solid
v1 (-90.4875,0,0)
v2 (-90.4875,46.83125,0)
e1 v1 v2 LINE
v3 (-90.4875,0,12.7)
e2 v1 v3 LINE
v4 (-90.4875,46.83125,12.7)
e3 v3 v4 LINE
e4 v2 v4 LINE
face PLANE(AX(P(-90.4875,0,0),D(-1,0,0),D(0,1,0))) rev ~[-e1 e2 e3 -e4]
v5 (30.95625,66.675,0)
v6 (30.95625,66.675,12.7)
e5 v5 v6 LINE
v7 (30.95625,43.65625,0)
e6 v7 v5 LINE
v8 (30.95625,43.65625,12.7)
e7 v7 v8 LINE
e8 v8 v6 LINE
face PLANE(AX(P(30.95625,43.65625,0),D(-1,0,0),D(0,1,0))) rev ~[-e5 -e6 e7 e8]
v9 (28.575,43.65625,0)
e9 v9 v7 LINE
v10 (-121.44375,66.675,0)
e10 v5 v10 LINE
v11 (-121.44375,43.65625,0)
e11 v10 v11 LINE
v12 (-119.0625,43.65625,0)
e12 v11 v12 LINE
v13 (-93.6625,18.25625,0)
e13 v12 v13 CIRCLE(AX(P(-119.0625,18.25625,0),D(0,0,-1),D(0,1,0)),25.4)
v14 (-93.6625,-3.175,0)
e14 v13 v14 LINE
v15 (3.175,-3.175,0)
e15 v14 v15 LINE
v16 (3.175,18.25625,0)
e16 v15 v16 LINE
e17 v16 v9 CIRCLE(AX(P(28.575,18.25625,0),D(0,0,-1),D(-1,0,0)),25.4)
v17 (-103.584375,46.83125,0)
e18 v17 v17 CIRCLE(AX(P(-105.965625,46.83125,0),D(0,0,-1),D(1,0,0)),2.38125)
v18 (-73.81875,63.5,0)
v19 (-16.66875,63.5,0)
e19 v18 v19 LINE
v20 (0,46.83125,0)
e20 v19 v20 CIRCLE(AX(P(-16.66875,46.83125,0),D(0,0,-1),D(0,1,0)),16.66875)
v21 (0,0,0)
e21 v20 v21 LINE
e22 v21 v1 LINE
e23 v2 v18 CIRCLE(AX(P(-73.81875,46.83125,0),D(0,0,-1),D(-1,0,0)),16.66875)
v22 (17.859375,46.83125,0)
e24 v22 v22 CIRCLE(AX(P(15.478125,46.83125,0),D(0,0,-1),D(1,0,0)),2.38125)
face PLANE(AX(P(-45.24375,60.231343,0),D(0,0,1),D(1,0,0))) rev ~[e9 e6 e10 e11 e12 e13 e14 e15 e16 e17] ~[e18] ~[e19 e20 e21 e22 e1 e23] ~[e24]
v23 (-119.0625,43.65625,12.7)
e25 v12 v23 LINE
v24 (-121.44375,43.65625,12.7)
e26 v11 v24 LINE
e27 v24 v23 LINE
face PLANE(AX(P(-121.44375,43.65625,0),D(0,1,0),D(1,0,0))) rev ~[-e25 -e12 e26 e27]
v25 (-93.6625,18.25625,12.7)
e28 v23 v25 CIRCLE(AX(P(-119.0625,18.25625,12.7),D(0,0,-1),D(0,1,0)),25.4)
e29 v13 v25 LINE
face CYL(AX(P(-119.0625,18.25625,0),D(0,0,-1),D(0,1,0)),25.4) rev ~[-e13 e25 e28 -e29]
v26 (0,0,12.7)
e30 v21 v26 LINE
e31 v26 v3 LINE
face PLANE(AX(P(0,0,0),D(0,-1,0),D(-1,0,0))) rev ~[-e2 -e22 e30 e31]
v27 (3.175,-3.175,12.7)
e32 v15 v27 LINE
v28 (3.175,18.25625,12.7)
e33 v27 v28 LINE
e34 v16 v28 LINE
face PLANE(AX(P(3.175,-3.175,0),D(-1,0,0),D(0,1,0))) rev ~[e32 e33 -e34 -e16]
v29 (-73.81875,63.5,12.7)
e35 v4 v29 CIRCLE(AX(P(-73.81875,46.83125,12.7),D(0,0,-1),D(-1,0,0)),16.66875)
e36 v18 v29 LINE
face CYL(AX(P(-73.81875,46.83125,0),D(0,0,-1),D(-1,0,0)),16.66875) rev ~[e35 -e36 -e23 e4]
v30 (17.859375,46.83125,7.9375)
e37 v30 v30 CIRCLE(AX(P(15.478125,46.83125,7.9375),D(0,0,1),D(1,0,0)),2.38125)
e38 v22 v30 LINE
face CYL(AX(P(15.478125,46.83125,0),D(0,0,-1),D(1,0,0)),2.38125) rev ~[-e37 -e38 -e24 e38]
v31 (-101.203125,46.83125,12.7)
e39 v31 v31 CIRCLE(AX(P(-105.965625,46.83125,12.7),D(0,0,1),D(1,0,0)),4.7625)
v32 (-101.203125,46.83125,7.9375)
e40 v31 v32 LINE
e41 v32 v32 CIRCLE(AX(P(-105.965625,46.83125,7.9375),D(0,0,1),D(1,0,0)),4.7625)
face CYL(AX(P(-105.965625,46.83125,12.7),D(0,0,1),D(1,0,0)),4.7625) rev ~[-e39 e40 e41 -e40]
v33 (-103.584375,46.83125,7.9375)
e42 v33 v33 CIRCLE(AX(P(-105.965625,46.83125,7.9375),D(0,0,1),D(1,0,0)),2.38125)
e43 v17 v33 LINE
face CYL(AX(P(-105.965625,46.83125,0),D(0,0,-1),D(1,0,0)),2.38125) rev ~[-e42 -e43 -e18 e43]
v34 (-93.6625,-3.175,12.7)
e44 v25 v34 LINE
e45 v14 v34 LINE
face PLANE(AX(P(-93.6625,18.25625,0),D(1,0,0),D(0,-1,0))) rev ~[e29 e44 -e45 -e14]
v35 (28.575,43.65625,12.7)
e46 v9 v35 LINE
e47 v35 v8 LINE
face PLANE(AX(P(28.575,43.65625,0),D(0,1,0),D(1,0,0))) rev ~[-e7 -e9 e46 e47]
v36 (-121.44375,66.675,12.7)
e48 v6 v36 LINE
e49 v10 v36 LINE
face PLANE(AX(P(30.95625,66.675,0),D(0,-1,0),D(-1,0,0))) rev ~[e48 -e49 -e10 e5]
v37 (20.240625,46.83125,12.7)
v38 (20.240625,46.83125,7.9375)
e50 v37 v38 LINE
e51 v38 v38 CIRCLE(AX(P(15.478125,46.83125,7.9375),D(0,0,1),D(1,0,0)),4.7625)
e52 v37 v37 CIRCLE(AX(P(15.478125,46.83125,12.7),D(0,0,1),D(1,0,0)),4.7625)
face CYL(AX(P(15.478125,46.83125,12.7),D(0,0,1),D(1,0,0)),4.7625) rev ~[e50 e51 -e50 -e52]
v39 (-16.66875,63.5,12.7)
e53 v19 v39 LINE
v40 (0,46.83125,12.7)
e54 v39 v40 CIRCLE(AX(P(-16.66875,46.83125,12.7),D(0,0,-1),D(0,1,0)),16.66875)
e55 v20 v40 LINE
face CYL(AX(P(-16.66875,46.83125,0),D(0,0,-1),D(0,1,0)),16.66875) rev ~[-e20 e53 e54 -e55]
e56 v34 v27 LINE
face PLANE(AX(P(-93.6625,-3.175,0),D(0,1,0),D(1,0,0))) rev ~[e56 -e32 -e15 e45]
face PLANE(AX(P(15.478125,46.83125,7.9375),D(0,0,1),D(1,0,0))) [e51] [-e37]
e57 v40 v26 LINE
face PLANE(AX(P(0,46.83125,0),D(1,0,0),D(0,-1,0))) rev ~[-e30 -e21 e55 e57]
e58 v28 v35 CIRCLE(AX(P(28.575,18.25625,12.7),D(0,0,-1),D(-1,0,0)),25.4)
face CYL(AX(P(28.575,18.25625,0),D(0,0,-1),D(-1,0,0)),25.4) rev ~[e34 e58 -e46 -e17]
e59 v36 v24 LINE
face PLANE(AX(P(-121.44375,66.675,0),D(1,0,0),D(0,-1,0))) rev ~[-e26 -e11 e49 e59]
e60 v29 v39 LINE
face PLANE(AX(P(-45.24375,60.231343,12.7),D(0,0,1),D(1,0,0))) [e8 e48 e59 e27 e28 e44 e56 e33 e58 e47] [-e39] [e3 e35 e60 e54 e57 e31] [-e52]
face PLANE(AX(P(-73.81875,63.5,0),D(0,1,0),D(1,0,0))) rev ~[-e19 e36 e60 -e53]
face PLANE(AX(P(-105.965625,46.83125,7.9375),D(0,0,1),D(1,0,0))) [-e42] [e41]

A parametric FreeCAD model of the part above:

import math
import FreeCAD as App
import Part
import Sketcher

V = App.Vector
Q = App.Units.Quantity

doc = App.newDocument("Part")
body = doc.addObject("PartDesign::Body", "Body")

sketch1 = doc.addObject("Sketcher::SketchObject", "Sketch")
body.addObject(sketch1)
sketch1.AttachmentSupport = (doc.XY_Plane, [""])
sketch1.MapMode = "FlatFace"
sketch1.addGeometry(Part.LineSegment(V(30.95625, 66.675, 0), V(-121.44375, 66.675, 0)), False)
sketch1.addGeometry(Part.LineSegment(V(-121.44375, 66.675, 0), V(-121.44375, 43.65625, 0)), False)
sketch1.addGeometry(Part.LineSegment(V(-121.44375, 43.65625, 0), V(-119.0625, 43.65625, 0)), False)
sketch1.addGeometry(Part.ArcOfCircle(Part.Circle(V(-119.0625, 18.25625, 0), V(0, 0, 1), 25.4), math.radians(0), math.radians(90)), False)
sketch1.addGeometry(Part.LineSegment(V(-93.6625, 18.25625, 0), V(-93.6625, -3.175, 0)), False)
sketch1.addGeometry(Part.LineSegment(V(-93.6625, -3.175, 0), V(3.175, -3.175, 0)), False)
sketch1.addGeometry(Part.LineSegment(V(3.175, -3.175, 0), V(3.175, 18.25625, 0)), False)
sketch1.addGeometry(Part.ArcOfCircle(Part.Circle(V(28.575, 18.25625, 0), V(0, 0, 1), 25.4), math.radians(90), math.radians(180)), False)
sketch1.addGeometry(Part.LineSegment(V(28.575, 43.65625, 0), V(30.95625, 43.65625, 0)), False)
sketch1.addGeometry(Part.LineSegment(V(30.95625, 43.65625, 0), V(30.95625, 66.675, 0)), False)
sketch1.addGeometry(Part.ArcOfCircle(Part.Circle(V(-16.66875, 46.83125, 0), V(0, 0, 1), 16.66875), math.radians(0), math.radians(90)), False)
sketch1.addGeometry(Part.LineSegment(V(0, 46.83125, 0), V(0, 0, 0)), False)
sketch1.addGeometry(Part.LineSegment(V(0, 0, 0), V(-90.4875, 0, 0)), False)
sketch1.addGeometry(Part.LineSegment(V(-90.4875, 0, 0), V(-90.4875, 46.83125, 0)), False)
sketch1.addGeometry(Part.ArcOfCircle(Part.Circle(V(-73.81875, 46.83125, 0), V(0, 0, 1), 16.66875), math.radians(90), math.radians(180)), False)
sketch1.addGeometry(Part.LineSegment(V(-73.81875, 63.5, 0), V(-16.66875, 63.5, 0)), False)
sketch1.addGeometry(Part.Circle(V(15.478125, 46.83125, 0), V(0, 0, 1), 2.38125), False)
sketch1.addGeometry(Part.Circle(V(-105.965625, 46.83125, 0), V(0, 0, 1), 2.38125), False)
sketch1.addConstraint(Sketcher.Constraint("Coincident", 0, 2, 1, 1))
sketch1.addConstraint(Sketcher.Constraint("Coincident", 1, 2, 2, 1))
sketch1.addConstraint(Sketcher.Constraint("Tangent", 2, 2, 3, 2))
sketch1.addConstraint(Sketcher.Constraint("Tangent", 3, 1, 4, 1))
sketch1.addConstraint(Sketcher.Constraint("Coincident", 4, 2, 5, 1))
sketch1.addConstraint(Sketcher.Constraint("Coincident", 5, 2, 6, 1))
sketch1.addConstraint(Sketcher.Constraint("Tangent", 6, 2, 7, 2))
sketch1.addConstraint(Sketcher.Constraint("Tangent", 7, 1, 8, 1))
sketch1.addConstraint(Sketcher.Constraint("Coincident", 8, 2, 9, 1))
sketch1.addConstraint(Sketcher.Constraint("Coincident", 9, 2, 0, 1))
sketch1.addConstraint(Sketcher.Constraint("Tangent", 10, 1, 11, 1))
sketch1.addConstraint(Sketcher.Constraint("Coincident", 11, 2, 12, 1))
sketch1.addConstraint(Sketcher.Constraint("Coincident", 12, 2, 13, 1))
sketch1.addConstraint(Sketcher.Constraint("Tangent", 13, 2, 14, 2))
sketch1.addConstraint(Sketcher.Constraint("Tangent", 14, 1, 15, 1))
sketch1.addConstraint(Sketcher.Constraint("Tangent", 15, 2, 10, 2))
sketch1.addConstraint(Sketcher.Constraint("Horizontal", 0))
sketch1.addConstraint(Sketcher.Constraint("Vertical", 1))
sketch1.addConstraint(Sketcher.Constraint("Horizontal", 2))
sketch1.addConstraint(Sketcher.Constraint("Vertical", 4))
sketch1.addConstraint(Sketcher.Constraint("Horizontal", 5))
sketch1.addConstraint(Sketcher.Constraint("Vertical", 6))
sketch1.addConstraint(Sketcher.Constraint("Horizontal", 8))
sketch1.addConstraint(Sketcher.Constraint("Vertical", 9))
sketch1.addConstraint(Sketcher.Constraint("Vertical", 11))
sketch1.addConstraint(Sketcher.Constraint("Horizontal", 12))
sketch1.addConstraint(Sketcher.Constraint("Vertical", 13))
sketch1.addConstraint(Sketcher.Constraint("Horizontal", 15))
sketch1.addConstraint(Sketcher.Constraint("Coincident", 11, 2, -1, 1))
sketch1.addConstraint(Sketcher.Constraint("Equal", 3, 7))
sketch1.addConstraint(Sketcher.Constraint("Equal", 10, 14))
sketch1.addConstraint(Sketcher.Constraint("Equal", 16, 17))
sketch1.addConstraint(Sketcher.Constraint("Horizontal", 3, 3, 7, 3))
sketch1.addConstraint(Sketcher.Constraint("Horizontal", 14, 3, 16, 3))
sketch1.addConstraint(Sketcher.Constraint("Horizontal", 16, 3, 17, 3))
sketch1.addConstraint(Sketcher.Constraint("Equal", 2, 8))
sketch1.addConstraint(Sketcher.Constraint("Radius", 3, Q("1 in")))
sketch1.addConstraint(Sketcher.Constraint("DistanceX", 0, 2, 0, 1, Q("6 in")))
sketch1.addConstraint(Sketcher.Constraint("Diameter", 16, Q("0.1875 in")))
sketch1.addConstraint(Sketcher.Constraint("Radius", 10, Q("0.65625 in")))
sketch1.addConstraint(Sketcher.Constraint("DistanceX", 15, 1, 15, 2, Q("2.25 in")))
sketch1.addConstraint(Sketcher.Constraint("DistanceY", -1, 1, 14, 1, Q("2.5 in")))
sketch1.addConstraint(Sketcher.Constraint("DistanceX", 2, 1, 2, 2, Q("0.09375 in")))
sketch1.addConstraint(Sketcher.Constraint("DistanceY", 1, 2, 1, 1, Q("0.90625 in")))
sketch1.addConstraint(Sketcher.Constraint("DistanceY", 4, 2, 4, 1, Q("0.84375 in")))
sketch1.addConstraint(Sketcher.Constraint("DistanceX", 3, 3, -1, 1, Q("4.6875 in")))
sketch1.addConstraint(Sketcher.Constraint("DistanceY", -1, 1, 3, 3, Q("0.71875 in")))
sketch1.addConstraint(Sketcher.Constraint("DistanceX", -1, 1, 16, 3, Q("0.609375 in")))
sketch1.addConstraint(Sketcher.Constraint("DistanceX", 17, 3, -1, 1, Q("4.171875 in")))
pad1 = doc.addObject("PartDesign::Pad", "Pad")
body.addObject(pad1)
pad1.Profile = sketch1
pad1.Length = Q("0.5 in")

sketch2 = doc.addObject("Sketcher::SketchObject", "Sketch001")
body.addObject(sketch2)
sketch2.AttachmentSupport = (doc.XY_Plane, [""])
sketch2.MapMode = "FlatFace"
sketch2.AttachmentOffset = App.Placement(V(0, 0, 0.5 * 25.4), App.Rotation())
sketch2.addGeometry(Part.Circle(V(-105.965625, 46.83125, 0), V(0, 0, 1), 4.7625), False)
sketch2.addGeometry(Part.Circle(V(-105.965625, 46.83125, 0), V(0, 0, 1), 2.38125), False)
sketch2.addGeometry(Part.Circle(V(15.478125, 46.83125, 0), V(0, 0, 1), 4.7625), False)
sketch2.addGeometry(Part.Circle(V(15.478125, 46.83125, 0), V(0, 0, 1), 2.38125), False)
sketch2.addConstraint(Sketcher.Constraint("Coincident", 1, 3, 0, 3))
sketch2.addConstraint(Sketcher.Constraint("Coincident", 3, 3, 2, 3))
sketch2.addConstraint(Sketcher.Constraint("Equal", 0, 2))
sketch2.addConstraint(Sketcher.Constraint("Equal", 1, 3))
sketch2.addConstraint(Sketcher.Constraint("Horizontal", 1, 3, 2, 3))
sketch2.addConstraint(Sketcher.Constraint("Diameter", 0, Q("0.375 in")))
sketch2.addConstraint(Sketcher.Constraint("Diameter", 1, Q("0.1875 in")))
sketch2.addConstraint(Sketcher.Constraint("DistanceX", 0, 3, -1, 1, Q("4.171875 in")))
sketch2.addConstraint(Sketcher.Constraint("DistanceY", -1, 1, 0, 3, Q("1.84375 in")))
sketch2.addConstraint(Sketcher.Constraint("DistanceX", -1, 1, 2, 3, Q("0.609375 in")))
pocket1 = doc.addObject("PartDesign::Pocket", "Pocket")
body.addObject(pocket1)
pocket1.Profile = sketch2
pocket1.Length = Q("0.1875 in")

doc.recompute()
